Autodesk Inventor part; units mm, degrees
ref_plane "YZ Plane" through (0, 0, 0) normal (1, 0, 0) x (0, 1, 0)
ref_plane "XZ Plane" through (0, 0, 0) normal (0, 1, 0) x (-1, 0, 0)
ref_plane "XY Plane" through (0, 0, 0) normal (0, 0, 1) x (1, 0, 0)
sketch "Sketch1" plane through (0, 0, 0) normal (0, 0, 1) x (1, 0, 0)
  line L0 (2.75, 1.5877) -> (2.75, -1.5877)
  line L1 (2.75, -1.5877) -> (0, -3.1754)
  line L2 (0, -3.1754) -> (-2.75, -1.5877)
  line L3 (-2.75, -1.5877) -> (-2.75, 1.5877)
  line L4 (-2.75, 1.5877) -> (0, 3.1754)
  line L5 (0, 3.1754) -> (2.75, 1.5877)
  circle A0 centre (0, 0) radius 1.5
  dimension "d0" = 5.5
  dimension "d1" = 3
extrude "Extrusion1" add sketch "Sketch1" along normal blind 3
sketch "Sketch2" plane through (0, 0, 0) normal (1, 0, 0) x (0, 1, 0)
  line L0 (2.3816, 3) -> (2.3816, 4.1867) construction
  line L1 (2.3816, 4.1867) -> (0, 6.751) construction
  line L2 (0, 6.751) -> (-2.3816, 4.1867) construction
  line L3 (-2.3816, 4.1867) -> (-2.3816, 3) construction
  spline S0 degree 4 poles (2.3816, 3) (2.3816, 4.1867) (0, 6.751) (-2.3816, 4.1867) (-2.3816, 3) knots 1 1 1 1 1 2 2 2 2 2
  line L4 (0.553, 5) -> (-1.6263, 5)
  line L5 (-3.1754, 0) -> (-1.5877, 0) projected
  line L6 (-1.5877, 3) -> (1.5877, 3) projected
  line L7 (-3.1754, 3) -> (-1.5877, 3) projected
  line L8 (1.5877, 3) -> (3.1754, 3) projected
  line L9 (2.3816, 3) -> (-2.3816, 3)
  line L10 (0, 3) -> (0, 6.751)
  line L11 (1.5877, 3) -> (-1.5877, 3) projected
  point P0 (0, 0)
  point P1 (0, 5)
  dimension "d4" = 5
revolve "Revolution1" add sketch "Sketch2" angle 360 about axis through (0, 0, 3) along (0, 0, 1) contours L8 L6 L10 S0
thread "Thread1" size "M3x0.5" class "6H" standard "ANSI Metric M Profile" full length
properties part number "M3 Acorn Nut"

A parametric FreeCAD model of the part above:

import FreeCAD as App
import Part
import Sketcher
Q = App.Units.Quantity


def add_polygon(sketch, points):
    """Adds a closed chain of lines whose ends are joined by coincident constraints."""
    first, n = sketch.GeometryCount, len(points)
    for a, b in zip(points, points[1:] + points[:1]):
        sketch.addGeometry(Part.LineSegment(App.Vector(*a, 0), App.Vector(*b, 0)), False)
    for i in range(n):
        sketch.addConstraint(Sketcher.Constraint("Coincident", first + i, 2, first + (i + 1) % n, 1))

doc = App.newDocument("Part")
body = doc.addObject("PartDesign::Body", "Body")

# Sketch on XY plane
sketch1 = body.newObject("Sketcher::SketchObject", "Sketch")
sketch1.AttachmentSupport = (doc.getObject("XY_Plane"), [""])
sketch1.MapMode = "FlatFace"
add_polygon(sketch1, [(2.8, -1.6), (2.8, 1.6), (0, 3.2), (-2.8, 1.6), (-2.8, -1.6), (0, -3.2)])  # lines 0-5
sketch1.addGeometry(Part.Circle(App.Vector(0, 0, 0), App.Vector(0, 0, 1), 1.5), False)  # 6
sketch1.addConstraint(Sketcher.Constraint("Vertical", 0))
sketch1.addConstraint(Sketcher.Constraint("Vertical", 3))
sketch1.addConstraint(Sketcher.Constraint("Coincident", 6, 3, -1, 1))
sketch1.addConstraint(Sketcher.Constraint("Symmetric", 0, 2, 3, 2, -1, 1))
sketch1.addConstraint(Sketcher.Constraint("Symmetric", 1, 2, 4, 2, -1, 1))
sketch1.addConstraint(Sketcher.Constraint("PointOnObject", 1, 2, -2))
sketch1.addConstraint(Sketcher.Constraint("Parallel", 2, 5))
sketch1.addConstraint(Sketcher.Constraint("Horizontal", 0, 2, 2, 2))
sketch1.addConstraint(Sketcher.Constraint("Diameter", 6, 3.0))
sketch1.addConstraint(Sketcher.Constraint("DistanceX", 2, 2, 0, 2, 5.5))
sketch1.addConstraint(Sketcher.Constraint("Angle", 1, Q("150.0002 deg")))
sketch1.addConstraint(Sketcher.Constraint("DistanceY", 0, 1, 0, 2, 3.1754))
pad1 = body.newObject("PartDesign::Pad", "Pad")
pad1.Profile = sketch1
pad1.Length = 3

# Sketch on YZ plane
sketch2 = body.newObject("Sketcher::SketchObject", "Sketch001")
sketch2.AttachmentSupport = (doc.getObject("YZ_Plane"), [""])
sketch2.MapMode = "FlatFace"
sketch2.addGeometry(Part.LineSegment(App.Vector(0, 3, 0), App.Vector(2.3816, 3, 0)), False)
sketch2.addGeometry(Part.BSplineCurve([App.Vector(2.3816, 3, 0), App.Vector(2.3816, 3.59335, 0), App.Vector(1.7862, 4.5311, 0), App.Vector(0.8931, 4.999975, 0), App.Vector(0, 4.999975, 0)], [5, 5], [1, 1.499999998], False, 4, [1, 1, 1, 1, 1], False), False)
sketch2.addGeometry(Part.LineSegment(App.Vector(0, 4.999987, 0), App.Vector(0, 3, 0)), False)
sketch2.addConstraint(Sketcher.Constraint("Block", 1))
sketch2.addConstraint(Sketcher.Constraint("Coincident", 0, 2, 1, 1))
sketch2.addConstraint(Sketcher.Constraint("Coincident", 1, 2, 2, 1))
sketch2.addConstraint(Sketcher.Constraint("Coincident", 2, 2, 0, 1))
sketch2.addConstraint(Sketcher.Constraint("Horizontal", 0))
sketch2.addConstraint(Sketcher.Constraint("Vertical", 2))
revolution = body.newObject("PartDesign::Revolution", "Revolution")
revolution.Profile = sketch2
revolution.ReferenceAxis = (sketch2, ["V_Axis"])
revolution.Angle = 360

doc.recompute()
